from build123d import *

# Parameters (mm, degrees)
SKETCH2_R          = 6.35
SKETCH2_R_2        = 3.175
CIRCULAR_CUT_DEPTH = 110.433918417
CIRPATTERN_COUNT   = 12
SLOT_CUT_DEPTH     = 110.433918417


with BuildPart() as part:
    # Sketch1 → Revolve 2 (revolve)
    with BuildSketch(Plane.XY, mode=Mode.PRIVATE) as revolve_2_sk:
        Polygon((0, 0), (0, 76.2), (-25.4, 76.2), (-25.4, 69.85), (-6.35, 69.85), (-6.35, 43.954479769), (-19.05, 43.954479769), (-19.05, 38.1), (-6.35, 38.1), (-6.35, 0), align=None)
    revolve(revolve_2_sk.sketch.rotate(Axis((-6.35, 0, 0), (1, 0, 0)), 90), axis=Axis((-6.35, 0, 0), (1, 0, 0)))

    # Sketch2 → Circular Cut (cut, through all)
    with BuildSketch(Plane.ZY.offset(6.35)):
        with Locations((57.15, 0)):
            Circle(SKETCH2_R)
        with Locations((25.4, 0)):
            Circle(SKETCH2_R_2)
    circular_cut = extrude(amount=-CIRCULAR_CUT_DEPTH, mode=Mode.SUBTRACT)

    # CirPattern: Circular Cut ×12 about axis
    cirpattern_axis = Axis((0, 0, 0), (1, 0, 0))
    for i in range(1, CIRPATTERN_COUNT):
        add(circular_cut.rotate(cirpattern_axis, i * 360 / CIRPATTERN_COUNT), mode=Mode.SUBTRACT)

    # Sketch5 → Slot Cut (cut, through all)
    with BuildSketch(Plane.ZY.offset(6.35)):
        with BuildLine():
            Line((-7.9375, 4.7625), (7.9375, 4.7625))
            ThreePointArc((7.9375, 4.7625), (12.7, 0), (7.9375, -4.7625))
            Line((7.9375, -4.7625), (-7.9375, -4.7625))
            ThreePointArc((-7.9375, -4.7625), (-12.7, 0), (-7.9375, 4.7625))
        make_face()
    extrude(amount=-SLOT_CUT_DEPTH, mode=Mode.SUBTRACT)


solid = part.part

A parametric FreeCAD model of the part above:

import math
import FreeCAD as App
import Part
import Sketcher
Q = App.Units.Quantity


def add_polygon(sketch, points):
    """Adds a closed chain of lines whose ends are joined by coincident constraints."""
    first, n = sketch.GeometryCount, len(points)
    for a, b in zip(points, points[1:] + points[:1]):
        sketch.addGeometry(Part.LineSegment(App.Vector(*a, 0), App.Vector(*b, 0)), False)
    for i in range(n):
        sketch.addConstraint(Sketcher.Constraint("Coincident", first + i, 2, first + (i + 1) % n, 1))

doc = App.newDocument("Part")
body = doc.addObject("PartDesign::Body", "Body")

# Sketch on XY plane
sketch1 = body.newObject("Sketcher::SketchObject", "Sketch")
sketch1.AttachmentSupport = (doc.getObject("XY_Plane"), [""])
sketch1.MapMode = "FlatFace"
add_polygon(sketch1, [(0, 0), (0, 76), (-25, 76), (-25, 70), (-6, 70), (-6, 44), (-19, 44), (-19, 38), (-6, 38), (-6, 0)])  # lines 0-9
sketch1.addConstraint(Sketcher.Constraint("Vertical", 0))
sketch1.addConstraint(Sketcher.Constraint("Horizontal", 1))
sketch1.addConstraint(Sketcher.Constraint("Vertical", 2))
sketch1.addConstraint(Sketcher.Constraint("Horizontal", 3))
sketch1.addConstraint(Sketcher.Constraint("Vertical", 4))
sketch1.addConstraint(Sketcher.Constraint("Horizontal", 5))
sketch1.addConstraint(Sketcher.Constraint("Vertical", 6))
sketch1.addConstraint(Sketcher.Constraint("Horizontal", 7))
sketch1.addConstraint(Sketcher.Constraint("Vertical", 8))
sketch1.addConstraint(Sketcher.Constraint("Horizontal", 9))
sketch1.addConstraint(Sketcher.Constraint("Coincident", 9, 2, -1, 1))
sketch1.addConstraint(Sketcher.Constraint("Vertical", 4, 2, 7, 2))
sketch1.addConstraint(Sketcher.Constraint("Equal", 9, 2))
sketch1.addConstraint(Sketcher.Constraint("DistanceX", 1, 2, 1, 1, Q("1 in")))
sketch1.addConstraint(Sketcher.Constraint("DistanceY", 0, 1, 0, 2, Q("3 in")))
sketch1.addConstraint(Sketcher.Constraint("DistanceX", 5, 2, 5, 1, Q("0.5 in")))
sketch1.addConstraint(Sketcher.Constraint("DistanceY", 8, 2, 8, 1, Q("1.5 in")))
sketch1.addConstraint(Sketcher.Constraint("DistanceX", 3, 1, 3, 2, Q("0.75 in")))
sketch1.addConstraint(Sketcher.Constraint("DistanceY", 4, 2, 4, 1, 25.89552))
revolution = body.newObject("PartDesign::Revolution", "Revolution")
revolution.Profile = sketch1
revolution.ReferenceAxis = (sketch1, ["H_Axis"])
revolution.Angle = 360

# Sketch on YZ plane
sketch2 = body.newObject("Sketcher::SketchObject", "Sketch001")
sketch2.AttachmentSupport = (doc.getObject("YZ_Plane"), [""])
sketch2.MapMode = "FlatFace"
sketch2.AttachmentOffset = App.Placement(App.Vector(0, 0, -0.25 * 25.4), App.Rotation())
sketch2.addGeometry(Part.Circle(App.Vector(0, 57.1, 0), App.Vector(0, 0, 1), 6.3), False)
sketch2.addGeometry(Part.Circle(App.Vector(0, 25.4, 0), App.Vector(0, 0, 1), 3.2), False)
sketch2.addConstraint(Sketcher.Constraint("PointOnObject", 0, 3, -2))
sketch2.addConstraint(Sketcher.Constraint("PointOnObject", 1, 3, -2))
sketch2.addConstraint(Sketcher.Constraint("Diameter", 0, Q("0.5 in")))
sketch2.addConstraint(Sketcher.Constraint("Diameter", 1, Q("0.25 in")))
sketch2.addConstraint(Sketcher.Constraint("DistanceY", -1, 1, 1, 3, Q("1 in")))
sketch2.addConstraint(Sketcher.Constraint("DistanceY", -1, 1, 0, 3, Q("2.25 in")))
pocket1 = body.newObject("PartDesign::Pocket", "Pocket")
pocket1.Profile = sketch2
pocket1.Type = "ThroughAll"
pocket1.Reversed = True
doc.recompute()

polarpattern = body.newObject("PartDesign::PolarPattern", "PolarPattern")
polarpattern.Originals = [pocket1]
polarpattern.Axis = (doc.getObject("X_Axis"), [""])
polarpattern.Angle = 360
polarpattern.Occurrences = 12
body.Tip = polarpattern

# Sketch on YZ plane
sketch3 = body.newObject("Sketcher::SketchObject", "Sketch002")
sketch3.AttachmentSupport = (doc.getObject("YZ_Plane"), [""])
sketch3.MapMode = "FlatFace"
sketch3.AttachmentOffset = App.Placement(App.Vector(0, 0, -0.25 * 25.4), App.Rotation())
sketch3.addGeometry(Part.LineSegment(App.Vector(4.8, 7.9, 0), App.Vector(4.8, -7.9, 0)), False)
sketch3.addGeometry(Part.ArcOfCircle(Part.Circle(App.Vector(0, -7.9, 0), App.Vector(0, 0, 1), 4.8), math.radians(180), math.radians(360)), False)
sketch3.addGeometry(Part.LineSegment(App.Vector(-4.8, -7.9, 0), App.Vector(-4.8, 7.9, 0)), False)
sketch3.addGeometry(Part.ArcOfCircle(Part.Circle(App.Vector(0, 7.9, 0), App.Vector(0, 0, 1), 4.8), math.radians(0), math.radians(180)), False)
sketch3.addConstraint(Sketcher.Constraint("Tangent", 0, 2, 1, 2))
sketch3.addConstraint(Sketcher.Constraint("Tangent", 1, 1, 2, 1))
sketch3.addConstraint(Sketcher.Constraint("Tangent", 2, 2, 3, 2))
sketch3.addConstraint(Sketcher.Constraint("Tangent", 3, 1, 0, 1))
sketch3.addConstraint(Sketcher.Constraint("Vertical", 0))
sketch3.addConstraint(Sketcher.Constraint("Vertical", 2))
sketch3.addConstraint(Sketcher.Constraint("Symmetric", 1, 3, 3, 3, -1, 1))
sketch3.addConstraint(Sketcher.Constraint("Radius", 1, Q("0.1875 in")))
sketch3.addConstraint(Sketcher.Constraint("DistanceY", 0, 2, 0, 1, Q("0.625 in")))
pocket2 = body.newObject("PartDesign::Pocket", "Pocket001")
pocket2.Profile = sketch3
pocket2.Type = "ThroughAll"
pocket2.Reversed = True

doc.recompute()
